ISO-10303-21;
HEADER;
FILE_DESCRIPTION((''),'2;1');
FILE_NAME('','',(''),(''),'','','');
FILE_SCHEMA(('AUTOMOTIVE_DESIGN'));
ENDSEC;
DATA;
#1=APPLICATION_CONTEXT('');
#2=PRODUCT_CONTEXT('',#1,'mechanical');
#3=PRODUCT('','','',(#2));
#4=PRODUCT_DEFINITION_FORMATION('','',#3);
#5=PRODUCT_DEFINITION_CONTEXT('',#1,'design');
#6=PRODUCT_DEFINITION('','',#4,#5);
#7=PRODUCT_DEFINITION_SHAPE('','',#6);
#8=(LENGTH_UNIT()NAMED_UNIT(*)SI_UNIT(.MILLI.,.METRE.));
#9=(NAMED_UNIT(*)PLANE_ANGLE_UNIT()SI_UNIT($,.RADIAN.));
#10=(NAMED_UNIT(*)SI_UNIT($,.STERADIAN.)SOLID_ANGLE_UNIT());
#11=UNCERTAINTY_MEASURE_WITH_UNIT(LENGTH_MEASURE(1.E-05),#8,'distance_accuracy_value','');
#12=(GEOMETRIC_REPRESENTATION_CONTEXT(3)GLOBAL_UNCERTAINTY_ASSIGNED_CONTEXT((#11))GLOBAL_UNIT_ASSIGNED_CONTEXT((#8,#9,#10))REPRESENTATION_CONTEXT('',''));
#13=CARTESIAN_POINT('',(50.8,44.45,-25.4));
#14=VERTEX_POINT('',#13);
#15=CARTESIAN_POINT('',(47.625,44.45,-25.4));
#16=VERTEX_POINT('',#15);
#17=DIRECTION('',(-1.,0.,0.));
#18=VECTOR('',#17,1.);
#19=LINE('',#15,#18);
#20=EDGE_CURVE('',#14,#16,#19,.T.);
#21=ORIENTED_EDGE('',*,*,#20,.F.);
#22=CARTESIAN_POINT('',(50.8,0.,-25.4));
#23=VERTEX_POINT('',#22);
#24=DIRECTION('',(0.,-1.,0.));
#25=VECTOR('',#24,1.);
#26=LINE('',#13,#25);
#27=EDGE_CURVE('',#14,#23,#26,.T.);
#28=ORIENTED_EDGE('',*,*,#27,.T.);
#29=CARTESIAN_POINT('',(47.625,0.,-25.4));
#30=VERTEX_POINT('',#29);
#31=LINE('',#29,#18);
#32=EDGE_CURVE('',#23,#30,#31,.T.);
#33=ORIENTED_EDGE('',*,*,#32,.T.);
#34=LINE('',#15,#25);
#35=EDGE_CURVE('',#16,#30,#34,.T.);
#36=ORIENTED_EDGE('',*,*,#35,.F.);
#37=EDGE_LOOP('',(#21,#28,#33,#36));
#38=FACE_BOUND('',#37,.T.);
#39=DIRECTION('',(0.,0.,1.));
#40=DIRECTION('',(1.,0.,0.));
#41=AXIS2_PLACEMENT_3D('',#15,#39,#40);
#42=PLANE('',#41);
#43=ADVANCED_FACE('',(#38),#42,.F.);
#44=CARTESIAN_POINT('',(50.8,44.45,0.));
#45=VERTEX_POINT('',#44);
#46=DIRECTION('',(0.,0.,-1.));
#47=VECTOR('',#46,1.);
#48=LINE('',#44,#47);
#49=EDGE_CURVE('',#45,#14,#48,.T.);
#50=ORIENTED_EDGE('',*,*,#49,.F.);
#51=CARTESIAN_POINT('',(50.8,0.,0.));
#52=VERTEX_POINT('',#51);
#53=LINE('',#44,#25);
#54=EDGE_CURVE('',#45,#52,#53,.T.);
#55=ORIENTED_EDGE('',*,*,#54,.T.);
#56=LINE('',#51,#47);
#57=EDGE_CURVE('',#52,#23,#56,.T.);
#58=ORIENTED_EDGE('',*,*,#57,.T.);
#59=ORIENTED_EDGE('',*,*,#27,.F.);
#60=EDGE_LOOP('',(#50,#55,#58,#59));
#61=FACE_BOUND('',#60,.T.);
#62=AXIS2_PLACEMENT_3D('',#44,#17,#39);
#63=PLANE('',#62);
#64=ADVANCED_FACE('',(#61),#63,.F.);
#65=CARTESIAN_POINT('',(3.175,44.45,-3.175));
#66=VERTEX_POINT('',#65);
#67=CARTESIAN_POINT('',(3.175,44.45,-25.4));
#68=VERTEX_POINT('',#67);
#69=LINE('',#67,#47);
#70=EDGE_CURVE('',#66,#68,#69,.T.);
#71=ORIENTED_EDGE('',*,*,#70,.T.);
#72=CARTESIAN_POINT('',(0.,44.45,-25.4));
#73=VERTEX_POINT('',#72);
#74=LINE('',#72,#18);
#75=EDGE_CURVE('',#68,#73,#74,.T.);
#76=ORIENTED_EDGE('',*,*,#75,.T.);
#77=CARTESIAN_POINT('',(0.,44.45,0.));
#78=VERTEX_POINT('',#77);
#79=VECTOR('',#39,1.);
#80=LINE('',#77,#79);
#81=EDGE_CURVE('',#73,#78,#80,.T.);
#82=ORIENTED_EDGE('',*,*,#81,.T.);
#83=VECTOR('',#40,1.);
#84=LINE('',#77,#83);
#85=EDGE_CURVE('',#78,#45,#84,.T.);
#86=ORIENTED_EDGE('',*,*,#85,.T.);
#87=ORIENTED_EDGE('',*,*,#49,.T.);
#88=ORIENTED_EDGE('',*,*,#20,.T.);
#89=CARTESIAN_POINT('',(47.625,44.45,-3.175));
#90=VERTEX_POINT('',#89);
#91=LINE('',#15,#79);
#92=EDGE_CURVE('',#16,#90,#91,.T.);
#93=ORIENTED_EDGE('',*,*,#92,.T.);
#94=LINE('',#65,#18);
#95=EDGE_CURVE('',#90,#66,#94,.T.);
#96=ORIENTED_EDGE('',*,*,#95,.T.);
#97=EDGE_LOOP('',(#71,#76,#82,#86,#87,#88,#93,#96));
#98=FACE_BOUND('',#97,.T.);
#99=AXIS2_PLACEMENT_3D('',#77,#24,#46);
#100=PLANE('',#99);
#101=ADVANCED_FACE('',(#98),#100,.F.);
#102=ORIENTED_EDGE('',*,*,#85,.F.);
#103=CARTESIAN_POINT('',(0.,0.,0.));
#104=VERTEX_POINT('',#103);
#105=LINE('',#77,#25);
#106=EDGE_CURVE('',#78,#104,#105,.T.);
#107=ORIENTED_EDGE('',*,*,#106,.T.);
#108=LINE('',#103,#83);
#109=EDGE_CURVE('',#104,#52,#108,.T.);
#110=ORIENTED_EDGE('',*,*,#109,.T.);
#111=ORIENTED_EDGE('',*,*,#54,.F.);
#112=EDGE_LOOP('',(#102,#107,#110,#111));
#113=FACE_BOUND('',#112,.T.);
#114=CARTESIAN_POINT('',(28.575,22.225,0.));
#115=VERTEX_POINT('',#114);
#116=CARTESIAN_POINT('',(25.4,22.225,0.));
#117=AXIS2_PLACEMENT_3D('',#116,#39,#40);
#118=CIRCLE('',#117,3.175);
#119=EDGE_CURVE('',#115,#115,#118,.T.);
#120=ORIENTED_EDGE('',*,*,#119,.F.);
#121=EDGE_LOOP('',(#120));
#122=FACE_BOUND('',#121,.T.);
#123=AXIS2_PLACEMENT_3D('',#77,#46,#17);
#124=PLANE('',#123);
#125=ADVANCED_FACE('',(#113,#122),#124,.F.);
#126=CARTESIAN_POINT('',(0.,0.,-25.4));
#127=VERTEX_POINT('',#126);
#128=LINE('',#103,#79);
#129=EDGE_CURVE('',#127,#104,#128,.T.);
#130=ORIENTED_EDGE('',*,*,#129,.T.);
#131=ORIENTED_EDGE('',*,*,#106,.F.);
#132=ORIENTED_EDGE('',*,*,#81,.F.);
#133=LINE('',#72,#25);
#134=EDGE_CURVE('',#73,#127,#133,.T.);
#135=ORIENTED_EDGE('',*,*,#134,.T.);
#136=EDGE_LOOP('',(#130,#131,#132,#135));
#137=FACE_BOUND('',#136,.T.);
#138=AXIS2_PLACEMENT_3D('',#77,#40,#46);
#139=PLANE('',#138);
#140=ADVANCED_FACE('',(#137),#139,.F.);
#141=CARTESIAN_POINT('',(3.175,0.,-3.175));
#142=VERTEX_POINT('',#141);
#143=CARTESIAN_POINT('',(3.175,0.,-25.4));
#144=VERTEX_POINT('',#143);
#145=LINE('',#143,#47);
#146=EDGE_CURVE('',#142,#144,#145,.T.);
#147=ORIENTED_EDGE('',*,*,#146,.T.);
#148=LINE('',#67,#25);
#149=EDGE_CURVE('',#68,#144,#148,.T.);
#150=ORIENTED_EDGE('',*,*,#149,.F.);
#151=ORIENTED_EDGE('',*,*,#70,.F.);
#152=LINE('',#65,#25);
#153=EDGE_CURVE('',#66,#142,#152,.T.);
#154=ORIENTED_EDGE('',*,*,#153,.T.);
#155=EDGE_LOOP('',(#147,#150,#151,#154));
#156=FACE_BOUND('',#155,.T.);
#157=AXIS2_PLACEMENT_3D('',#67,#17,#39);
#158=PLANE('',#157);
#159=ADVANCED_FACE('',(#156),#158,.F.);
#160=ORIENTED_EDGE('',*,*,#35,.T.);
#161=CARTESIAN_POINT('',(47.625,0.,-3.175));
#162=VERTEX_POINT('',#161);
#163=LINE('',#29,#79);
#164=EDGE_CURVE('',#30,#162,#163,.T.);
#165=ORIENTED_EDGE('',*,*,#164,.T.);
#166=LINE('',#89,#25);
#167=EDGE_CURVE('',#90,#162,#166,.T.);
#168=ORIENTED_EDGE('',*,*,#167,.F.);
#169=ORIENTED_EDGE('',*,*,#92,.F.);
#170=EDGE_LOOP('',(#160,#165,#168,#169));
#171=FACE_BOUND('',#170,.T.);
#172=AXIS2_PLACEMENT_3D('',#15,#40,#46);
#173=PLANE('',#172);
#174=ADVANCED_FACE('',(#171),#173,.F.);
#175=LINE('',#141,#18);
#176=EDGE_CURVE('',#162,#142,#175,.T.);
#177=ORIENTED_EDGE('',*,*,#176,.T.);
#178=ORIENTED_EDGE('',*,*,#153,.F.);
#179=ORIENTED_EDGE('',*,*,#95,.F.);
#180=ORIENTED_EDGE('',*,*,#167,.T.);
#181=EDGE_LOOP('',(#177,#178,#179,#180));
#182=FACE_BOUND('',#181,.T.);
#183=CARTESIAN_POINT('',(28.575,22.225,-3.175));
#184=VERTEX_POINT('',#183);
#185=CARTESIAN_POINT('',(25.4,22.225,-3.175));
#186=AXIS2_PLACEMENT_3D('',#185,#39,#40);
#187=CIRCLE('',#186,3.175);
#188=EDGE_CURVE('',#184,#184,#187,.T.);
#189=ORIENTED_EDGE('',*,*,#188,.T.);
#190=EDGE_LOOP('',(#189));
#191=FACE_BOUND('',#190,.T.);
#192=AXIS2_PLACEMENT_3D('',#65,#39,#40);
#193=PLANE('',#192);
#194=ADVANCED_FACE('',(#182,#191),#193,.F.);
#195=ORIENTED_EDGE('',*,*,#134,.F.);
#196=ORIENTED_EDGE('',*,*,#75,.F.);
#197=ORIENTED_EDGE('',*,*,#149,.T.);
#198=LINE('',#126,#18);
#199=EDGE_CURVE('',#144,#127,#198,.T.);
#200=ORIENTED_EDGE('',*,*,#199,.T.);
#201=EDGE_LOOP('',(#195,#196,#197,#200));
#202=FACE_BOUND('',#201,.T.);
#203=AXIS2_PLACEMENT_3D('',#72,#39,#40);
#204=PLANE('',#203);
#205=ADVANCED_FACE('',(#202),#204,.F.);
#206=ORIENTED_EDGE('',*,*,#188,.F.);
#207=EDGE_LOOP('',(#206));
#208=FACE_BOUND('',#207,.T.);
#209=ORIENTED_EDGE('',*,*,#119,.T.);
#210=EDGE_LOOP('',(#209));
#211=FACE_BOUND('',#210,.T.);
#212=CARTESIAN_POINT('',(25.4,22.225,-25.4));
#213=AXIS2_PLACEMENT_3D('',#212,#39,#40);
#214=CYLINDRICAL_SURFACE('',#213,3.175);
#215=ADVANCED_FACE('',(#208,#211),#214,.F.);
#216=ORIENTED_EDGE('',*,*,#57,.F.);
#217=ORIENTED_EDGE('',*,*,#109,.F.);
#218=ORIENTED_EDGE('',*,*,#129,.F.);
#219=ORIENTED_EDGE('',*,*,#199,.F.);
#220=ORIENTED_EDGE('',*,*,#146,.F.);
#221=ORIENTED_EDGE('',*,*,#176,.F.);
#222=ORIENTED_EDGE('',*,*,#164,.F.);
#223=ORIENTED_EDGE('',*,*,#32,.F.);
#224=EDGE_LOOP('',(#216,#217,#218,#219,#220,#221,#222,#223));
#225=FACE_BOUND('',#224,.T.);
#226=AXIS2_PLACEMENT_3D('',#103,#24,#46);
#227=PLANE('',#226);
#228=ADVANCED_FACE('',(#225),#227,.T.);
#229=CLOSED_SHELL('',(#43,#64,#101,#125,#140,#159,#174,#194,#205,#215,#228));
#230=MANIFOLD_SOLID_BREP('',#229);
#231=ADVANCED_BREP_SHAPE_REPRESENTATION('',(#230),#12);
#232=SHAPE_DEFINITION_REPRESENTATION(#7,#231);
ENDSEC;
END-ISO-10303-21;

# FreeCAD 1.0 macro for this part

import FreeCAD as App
import Part
import Sketcher
Q = App.Units.Quantity

doc = App.newDocument("Part")
body = doc.addObject("PartDesign::Body", "Body")

# Sketch on XZ plane
sketch1 = doc.addObject("Sketcher::SketchObject", "Sketch")
body.addObject(sketch1)
sketch1.AttachmentSupport = (doc.XZ_Plane, [""])
sketch1.MapMode = "FlatFace"
sketch1.addGeometry(Part.LineSegment(App.Vector(50.8, -25.4, 0), App.Vector(47.6, -25.4, 0)), False)
sketch1.addGeometry(Part.LineSegment(App.Vector(47.6, -25.4, 0), App.Vector(47.6, -3.2, 0)), False)
sketch1.addGeometry(Part.LineSegment(App.Vector(47.6, -3.2, 0), App.Vector(3.2, -3.2, 0)), False)
sketch1.addGeometry(Part.LineSegment(App.Vector(3.2, -3.2, 0), App.Vector(3.2, -25.4, 0)), False)
sketch1.addGeometry(Part.LineSegment(App.Vector(3.2, -25.4, 0), App.Vector(0, -25.4, 0)), False)
sketch1.addGeometry(Part.LineSegment(App.Vector(0, -25.4, 0), App.Vector(0, 0, 0)), False)
sketch1.addGeometry(Part.LineSegment(App.Vector(0, 0, 0), App.Vector(50.8, 0, 0)), False)
sketch1.addGeometry(Part.LineSegment(App.Vector(50.8, 0, 0), App.Vector(50.8, -25.4, 0)), False)
sketch1.addConstraint(Sketcher.Constraint("Coincident", 0, 2, 1, 1))
sketch1.addConstraint(Sketcher.Constraint("Coincident", 1, 2, 2, 1))
sketch1.addConstraint(Sketcher.Constraint("Coincident", 2, 2, 3, 1))
sketch1.addConstraint(Sketcher.Constraint("Coincident", 3, 2, 4, 1))
sketch1.addConstraint(Sketcher.Constraint("Coincident", 4, 2, 5, 1))
sketch1.addConstraint(Sketcher.Constraint("Coincident", 5, 2, 6, 1))
sketch1.addConstraint(Sketcher.Constraint("Coincident", 6, 2, 7, 1))
sketch1.addConstraint(Sketcher.Constraint("Coincident", 7, 2, 0, 1))
sketch1.addConstraint(Sketcher.Constraint("Horizontal", 0))
sketch1.addConstraint(Sketcher.Constraint("Vertical", 1))
sketch1.addConstraint(Sketcher.Constraint("Horizontal", 2))
sketch1.addConstraint(Sketcher.Constraint("Vertical", 3))
sketch1.addConstraint(Sketcher.Constraint("Horizontal", 4))
sketch1.addConstraint(Sketcher.Constraint("Vertical", 5))
sketch1.addConstraint(Sketcher.Constraint("Horizontal", 6))
sketch1.addConstraint(Sketcher.Constraint("Vertical", 7))
sketch1.addConstraint(Sketcher.Constraint("Coincident", 5, 2, -1, 1))
sketch1.addConstraint(Sketcher.Constraint("Horizontal", 0, 2, 3, 2))
sketch1.addConstraint(Sketcher.Constraint("Equal", 0, 4))
sketch1.addConstraint(Sketcher.Constraint("DistanceX", 6, 1, 6, 2, Q("2 in")))
sketch1.addConstraint(Sketcher.Constraint("DistanceY", 5, 1, 5, 2, Q("1 in")))
sketch1.addConstraint(Sketcher.Constraint("DistanceX", 2, 2, 2, 1, Q("1.75 in")))
sketch1.addConstraint(Sketcher.Constraint("DistanceY", 1, 1, 1, 2, Q("0.875 in")))
pad1 = doc.addObject("PartDesign::Pad", "Pad")
body.addObject(pad1)
pad1.Profile = sketch1
pad1.Length = Q("1.75 in")
pad1.Reversed = True

# Sketch on XY plane
sketch2 = doc.addObject("Sketcher::SketchObject", "Sketch001")
body.addObject(sketch2)
sketch2.AttachmentSupport = (doc.XY_Plane, [""])
sketch2.MapMode = "FlatFace"
sketch2.addGeometry(Part.Circle(App.Vector(25.4, 22.2, 0), App.Vector(0, 0, 1), 3.2), False)
sketch2.addConstraint(Sketcher.Constraint("Diameter", 0, Q("0.25 in")))
sketch2.addConstraint(Sketcher.Constraint("DistanceX", -1, 1, 0, 3, Q("1 in")))
sketch2.addConstraint(Sketcher.Constraint("DistanceY", -1, 1, 0, 3, Q("0.875 in")))
pocket1 = doc.addObject("PartDesign::Pocket", "Pocket")
body.addObject(pocket1)
pocket1.Profile = sketch2
pocket1.Type = "ThroughAll"

doc.recompute()
